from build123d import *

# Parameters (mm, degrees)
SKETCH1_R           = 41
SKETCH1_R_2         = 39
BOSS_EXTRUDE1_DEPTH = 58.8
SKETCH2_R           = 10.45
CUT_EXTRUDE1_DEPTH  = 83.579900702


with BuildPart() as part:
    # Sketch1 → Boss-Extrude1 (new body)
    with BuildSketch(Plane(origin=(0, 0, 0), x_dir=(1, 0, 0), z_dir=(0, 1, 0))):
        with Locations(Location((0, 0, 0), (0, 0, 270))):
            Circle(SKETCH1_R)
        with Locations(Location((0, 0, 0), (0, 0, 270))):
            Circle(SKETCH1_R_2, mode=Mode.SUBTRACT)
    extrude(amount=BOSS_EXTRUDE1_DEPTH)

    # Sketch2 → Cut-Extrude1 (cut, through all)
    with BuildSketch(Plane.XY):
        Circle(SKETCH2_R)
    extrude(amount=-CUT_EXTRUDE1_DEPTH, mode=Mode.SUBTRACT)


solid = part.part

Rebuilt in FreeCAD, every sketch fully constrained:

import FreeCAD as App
import Part
import Sketcher

doc = App.newDocument("Part")
body = doc.addObject("PartDesign::Body", "Body")

# Sketch on XZ plane
sketch1 = body.newObject("Sketcher::SketchObject", "Sketch")
sketch1.AttachmentSupport = (doc.getObject("XZ_Plane"), [""])
sketch1.MapMode = "FlatFace"
sketch1.addGeometry([
    Part.Circle(App.Vector(0, 0, 0), App.Vector(0, 0, 1), 41),
    Part.Circle(App.Vector(0, 0, 0), App.Vector(0, 0, 1), 39),
], False)
sketch1.addConstraint([
    Sketcher.Constraint("Coincident", 0, 3, -1, 1),
    Sketcher.Constraint("Coincident", 1, 3, -1, 1),
    Sketcher.Constraint("Diameter", 0, 82.0),
    Sketcher.Constraint("Diameter", 1, 78.0),
])
pad1 = body.newObject("PartDesign::Pad", "Pad")
pad1.Profile = sketch1
pad1.Length = 58.8
pad1.Reversed = True

# Sketch on XY plane
sketch2 = body.newObject("Sketcher::SketchObject", "Sketch001")
sketch2.AttachmentSupport = (doc.getObject("XY_Plane"), [""])
sketch2.MapMode = "FlatFace"
sketch2.addGeometry(Part.Circle(App.Vector(0, 0, 0), App.Vector(0, 0, 1), 10.45), False)
sketch2.addConstraint([
    Sketcher.Constraint("Coincident", 0, 3, -1, 1),
    Sketcher.Constraint("Diameter", 0, 20.9),
])
pocket1 = body.newObject("PartDesign::Pocket", "Pocket")
pocket1.Profile = sketch2
pocket1.Type = "ThroughAll"

doc.recompute()
